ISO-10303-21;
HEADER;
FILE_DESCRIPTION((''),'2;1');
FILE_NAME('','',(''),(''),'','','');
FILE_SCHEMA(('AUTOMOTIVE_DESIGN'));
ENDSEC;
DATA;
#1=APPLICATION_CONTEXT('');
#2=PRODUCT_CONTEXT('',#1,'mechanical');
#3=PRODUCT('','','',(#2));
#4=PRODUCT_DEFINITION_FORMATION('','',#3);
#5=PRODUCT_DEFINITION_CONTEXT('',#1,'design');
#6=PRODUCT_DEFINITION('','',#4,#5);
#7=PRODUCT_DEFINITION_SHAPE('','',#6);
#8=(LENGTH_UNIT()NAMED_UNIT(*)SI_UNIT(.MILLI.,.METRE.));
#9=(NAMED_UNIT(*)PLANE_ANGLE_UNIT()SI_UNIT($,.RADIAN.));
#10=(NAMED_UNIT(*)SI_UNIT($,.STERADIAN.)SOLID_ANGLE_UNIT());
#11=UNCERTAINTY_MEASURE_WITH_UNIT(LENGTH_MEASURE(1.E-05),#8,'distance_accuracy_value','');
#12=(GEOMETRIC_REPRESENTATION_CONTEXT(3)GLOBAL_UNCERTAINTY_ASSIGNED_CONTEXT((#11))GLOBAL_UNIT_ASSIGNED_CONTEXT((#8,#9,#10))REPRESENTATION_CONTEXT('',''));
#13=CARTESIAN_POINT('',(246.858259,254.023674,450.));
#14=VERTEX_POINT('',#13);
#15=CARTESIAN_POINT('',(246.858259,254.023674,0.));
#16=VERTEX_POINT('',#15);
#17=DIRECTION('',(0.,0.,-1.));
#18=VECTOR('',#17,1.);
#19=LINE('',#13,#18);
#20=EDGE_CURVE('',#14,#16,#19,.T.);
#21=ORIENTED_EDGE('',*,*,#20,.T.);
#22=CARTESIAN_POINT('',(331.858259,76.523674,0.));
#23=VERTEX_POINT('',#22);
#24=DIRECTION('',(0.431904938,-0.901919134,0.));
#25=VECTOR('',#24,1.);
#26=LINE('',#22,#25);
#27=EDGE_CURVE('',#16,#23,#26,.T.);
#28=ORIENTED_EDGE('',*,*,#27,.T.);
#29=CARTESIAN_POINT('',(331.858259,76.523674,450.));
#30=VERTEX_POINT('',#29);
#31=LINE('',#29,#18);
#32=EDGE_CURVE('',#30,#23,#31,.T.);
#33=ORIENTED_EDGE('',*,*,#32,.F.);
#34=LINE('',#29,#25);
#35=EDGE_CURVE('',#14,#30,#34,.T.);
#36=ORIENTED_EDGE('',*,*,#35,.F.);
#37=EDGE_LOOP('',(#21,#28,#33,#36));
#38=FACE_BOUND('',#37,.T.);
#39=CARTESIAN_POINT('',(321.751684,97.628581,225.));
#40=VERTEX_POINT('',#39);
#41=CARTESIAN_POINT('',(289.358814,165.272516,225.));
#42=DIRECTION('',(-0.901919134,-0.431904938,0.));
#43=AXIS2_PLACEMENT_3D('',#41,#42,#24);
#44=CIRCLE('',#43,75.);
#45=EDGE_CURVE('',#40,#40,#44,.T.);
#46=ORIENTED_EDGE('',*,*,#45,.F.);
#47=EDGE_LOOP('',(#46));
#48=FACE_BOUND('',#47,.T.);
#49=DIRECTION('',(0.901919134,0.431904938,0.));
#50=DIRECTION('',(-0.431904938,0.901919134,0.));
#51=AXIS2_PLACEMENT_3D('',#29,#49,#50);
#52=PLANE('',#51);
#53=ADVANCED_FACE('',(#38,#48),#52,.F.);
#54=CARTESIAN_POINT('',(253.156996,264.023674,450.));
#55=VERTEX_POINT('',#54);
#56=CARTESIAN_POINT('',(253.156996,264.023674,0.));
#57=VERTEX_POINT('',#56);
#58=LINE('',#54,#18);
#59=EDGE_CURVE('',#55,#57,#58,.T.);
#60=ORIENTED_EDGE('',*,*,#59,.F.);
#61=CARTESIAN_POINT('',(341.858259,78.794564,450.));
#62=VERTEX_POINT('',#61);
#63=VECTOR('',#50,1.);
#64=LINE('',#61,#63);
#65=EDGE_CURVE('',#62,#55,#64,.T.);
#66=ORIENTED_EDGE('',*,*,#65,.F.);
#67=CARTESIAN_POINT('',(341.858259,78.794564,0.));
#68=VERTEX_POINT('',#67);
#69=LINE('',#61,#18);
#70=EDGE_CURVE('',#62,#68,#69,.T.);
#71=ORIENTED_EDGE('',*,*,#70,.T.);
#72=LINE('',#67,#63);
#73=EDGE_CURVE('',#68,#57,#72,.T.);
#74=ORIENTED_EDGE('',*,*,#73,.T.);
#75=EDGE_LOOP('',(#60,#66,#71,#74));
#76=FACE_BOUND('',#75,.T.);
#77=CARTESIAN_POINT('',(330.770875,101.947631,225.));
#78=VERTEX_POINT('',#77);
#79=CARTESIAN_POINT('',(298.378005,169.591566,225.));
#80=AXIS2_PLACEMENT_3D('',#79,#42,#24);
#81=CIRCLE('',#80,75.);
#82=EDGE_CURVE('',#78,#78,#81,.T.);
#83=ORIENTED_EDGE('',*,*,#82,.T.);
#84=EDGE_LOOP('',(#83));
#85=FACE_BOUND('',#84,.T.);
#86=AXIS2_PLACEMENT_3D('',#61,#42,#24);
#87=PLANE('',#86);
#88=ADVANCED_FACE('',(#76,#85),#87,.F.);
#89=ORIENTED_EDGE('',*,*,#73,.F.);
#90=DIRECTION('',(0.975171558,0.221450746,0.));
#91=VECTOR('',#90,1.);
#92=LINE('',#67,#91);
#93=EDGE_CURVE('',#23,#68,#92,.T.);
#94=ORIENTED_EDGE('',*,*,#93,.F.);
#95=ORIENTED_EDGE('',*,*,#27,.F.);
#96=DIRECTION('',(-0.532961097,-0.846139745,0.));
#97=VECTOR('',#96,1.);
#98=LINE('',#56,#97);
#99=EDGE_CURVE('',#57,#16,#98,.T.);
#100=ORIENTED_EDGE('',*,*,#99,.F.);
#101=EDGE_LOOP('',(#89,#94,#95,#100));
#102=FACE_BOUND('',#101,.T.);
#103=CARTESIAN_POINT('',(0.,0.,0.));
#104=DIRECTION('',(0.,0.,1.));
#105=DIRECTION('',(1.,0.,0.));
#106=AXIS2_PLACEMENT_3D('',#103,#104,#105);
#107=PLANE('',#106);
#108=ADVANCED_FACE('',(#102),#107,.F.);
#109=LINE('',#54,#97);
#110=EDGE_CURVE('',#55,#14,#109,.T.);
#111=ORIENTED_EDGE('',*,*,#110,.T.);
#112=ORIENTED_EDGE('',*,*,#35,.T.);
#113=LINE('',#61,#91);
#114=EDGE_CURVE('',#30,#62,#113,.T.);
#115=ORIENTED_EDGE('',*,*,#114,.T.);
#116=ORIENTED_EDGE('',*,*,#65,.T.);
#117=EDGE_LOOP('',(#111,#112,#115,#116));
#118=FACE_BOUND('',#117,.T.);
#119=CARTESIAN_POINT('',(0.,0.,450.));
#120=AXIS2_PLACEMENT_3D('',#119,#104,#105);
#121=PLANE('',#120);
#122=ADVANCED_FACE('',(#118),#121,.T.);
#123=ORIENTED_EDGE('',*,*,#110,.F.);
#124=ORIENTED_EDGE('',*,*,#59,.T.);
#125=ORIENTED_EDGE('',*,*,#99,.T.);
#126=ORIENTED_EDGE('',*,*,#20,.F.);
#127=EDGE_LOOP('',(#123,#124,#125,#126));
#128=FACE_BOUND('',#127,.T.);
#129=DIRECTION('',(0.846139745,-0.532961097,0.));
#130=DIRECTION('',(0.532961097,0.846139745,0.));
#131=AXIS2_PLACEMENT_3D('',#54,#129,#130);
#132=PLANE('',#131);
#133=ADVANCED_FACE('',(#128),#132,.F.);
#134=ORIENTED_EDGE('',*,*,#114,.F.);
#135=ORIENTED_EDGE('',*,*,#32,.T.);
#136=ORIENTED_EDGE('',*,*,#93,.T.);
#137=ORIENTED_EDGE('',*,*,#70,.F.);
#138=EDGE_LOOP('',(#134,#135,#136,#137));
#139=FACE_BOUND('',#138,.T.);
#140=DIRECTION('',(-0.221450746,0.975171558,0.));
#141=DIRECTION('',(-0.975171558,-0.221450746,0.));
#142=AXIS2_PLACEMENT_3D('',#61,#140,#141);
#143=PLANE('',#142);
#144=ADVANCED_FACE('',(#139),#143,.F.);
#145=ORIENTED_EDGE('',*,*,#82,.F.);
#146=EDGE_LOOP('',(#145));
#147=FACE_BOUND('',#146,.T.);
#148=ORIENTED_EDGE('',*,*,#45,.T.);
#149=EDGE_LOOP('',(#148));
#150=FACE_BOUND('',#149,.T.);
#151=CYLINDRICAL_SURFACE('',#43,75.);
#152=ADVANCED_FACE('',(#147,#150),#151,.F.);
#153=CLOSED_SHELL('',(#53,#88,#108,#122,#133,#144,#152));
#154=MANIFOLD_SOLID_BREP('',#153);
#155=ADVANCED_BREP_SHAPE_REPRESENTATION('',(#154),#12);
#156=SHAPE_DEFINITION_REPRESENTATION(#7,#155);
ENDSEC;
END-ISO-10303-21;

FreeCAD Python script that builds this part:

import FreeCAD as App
import Part
import Sketcher
from FreeCAD import Vector
Q = App.Units.Quantity

doc = App.newDocument("Part")
body = doc.addObject("PartDesign::Body", "Body")

# Sketch on XY plane
sketch1 = body.newObject("Sketcher::SketchObject", "Sketch")
sketch1.AttachmentSupport = (doc.getObject("XY_Plane"), [""])
sketch1.MapMode = "FlatFace"
sketch1.addGeometry(Part.LineSegment(Vector(253, 264, 0), Vector(247, 254, 0)), False)
sketch1.addGeometry(Part.LineSegment(Vector(247, 254, 0), Vector(332, 77, 0)), False)
sketch1.addGeometry(Part.LineSegment(Vector(332, 77, 0), Vector(342, 79, 0)), False)
sketch1.addGeometry(Part.LineSegment(Vector(342, 79, 0), Vector(253, 264, 0)), False)
sketch1.addConstraint(Sketcher.Constraint("Coincident", 0, 2, 1, 1))
sketch1.addConstraint(Sketcher.Constraint("Coincident", 1, 2, 2, 1))
sketch1.addConstraint(Sketcher.Constraint("Coincident", 2, 2, 3, 1))
sketch1.addConstraint(Sketcher.Constraint("Coincident", 3, 2, 0, 1))
sketch1.addConstraint(Sketcher.Constraint("Parallel", 1, 3))
sketch1.addConstraint(Sketcher.Constraint("DistanceX", 0, 2, 1, 2, Q("85 mm")))
sketch1.addConstraint(Sketcher.Constraint("DistanceX", 1, 2, 2, 2, Q("10 mm")))
sketch1.addConstraint(Sketcher.Constraint("DistanceY", 0, 2, 3, 2, Q("10 mm")))
sketch1.addConstraint(Sketcher.Constraint("DistanceY", 1, 2, 0, 2, Q("177.5 mm")))
sketch1.addConstraint(Sketcher.Constraint("Distance", 0, Q("11.818379 mm")))
sketch1.addConstraint(Sketcher.Constraint("DistanceX", -1, 1, 0, 2, Q("246.858259 mm")))
sketch1.addConstraint(Sketcher.Constraint("DistanceY", -1, 1, 0, 2, Q("254.023674 mm")))
pad1 = body.newObject("PartDesign::Pad", "Pad")
pad1.Profile = sketch1
pad1.Length = 450

# Sketch on an angled plane
sketch2 = body.newObject("Sketcher::SketchObject", "Sketch001")
sketch2.Placement = App.Placement(Vector(299.762084, 143.54804, 0), App.Rotation(Vector(0, 0, 1), Vector(-0.431904938, 0.901919134, 0), Vector(-0.901919134, -0.431904938, 0), "ZXY"))
sketch2.addGeometry(Part.Circle(Vector(225, 24, 0), Vector(0, 0, 1), 75), False)
sketch2.addConstraint(Sketcher.Constraint("Diameter", 0, Q("150 mm")))
sketch2.addConstraint(Sketcher.Constraint("DistanceX", -1, 1, 0, 3, Q("225 mm")))
sketch2.addConstraint(Sketcher.Constraint("DistanceY", -1, 1, 0, 3, Q("24.086944 mm")))
doc.recompute()
hole = body.newObject("PartDesign::Hole", "Hole")
hole.Profile = sketch2
hole.ThreadType = "None"
hole.Diameter = 150
hole.DepthType = "ThroughAll"

doc.recompute()
